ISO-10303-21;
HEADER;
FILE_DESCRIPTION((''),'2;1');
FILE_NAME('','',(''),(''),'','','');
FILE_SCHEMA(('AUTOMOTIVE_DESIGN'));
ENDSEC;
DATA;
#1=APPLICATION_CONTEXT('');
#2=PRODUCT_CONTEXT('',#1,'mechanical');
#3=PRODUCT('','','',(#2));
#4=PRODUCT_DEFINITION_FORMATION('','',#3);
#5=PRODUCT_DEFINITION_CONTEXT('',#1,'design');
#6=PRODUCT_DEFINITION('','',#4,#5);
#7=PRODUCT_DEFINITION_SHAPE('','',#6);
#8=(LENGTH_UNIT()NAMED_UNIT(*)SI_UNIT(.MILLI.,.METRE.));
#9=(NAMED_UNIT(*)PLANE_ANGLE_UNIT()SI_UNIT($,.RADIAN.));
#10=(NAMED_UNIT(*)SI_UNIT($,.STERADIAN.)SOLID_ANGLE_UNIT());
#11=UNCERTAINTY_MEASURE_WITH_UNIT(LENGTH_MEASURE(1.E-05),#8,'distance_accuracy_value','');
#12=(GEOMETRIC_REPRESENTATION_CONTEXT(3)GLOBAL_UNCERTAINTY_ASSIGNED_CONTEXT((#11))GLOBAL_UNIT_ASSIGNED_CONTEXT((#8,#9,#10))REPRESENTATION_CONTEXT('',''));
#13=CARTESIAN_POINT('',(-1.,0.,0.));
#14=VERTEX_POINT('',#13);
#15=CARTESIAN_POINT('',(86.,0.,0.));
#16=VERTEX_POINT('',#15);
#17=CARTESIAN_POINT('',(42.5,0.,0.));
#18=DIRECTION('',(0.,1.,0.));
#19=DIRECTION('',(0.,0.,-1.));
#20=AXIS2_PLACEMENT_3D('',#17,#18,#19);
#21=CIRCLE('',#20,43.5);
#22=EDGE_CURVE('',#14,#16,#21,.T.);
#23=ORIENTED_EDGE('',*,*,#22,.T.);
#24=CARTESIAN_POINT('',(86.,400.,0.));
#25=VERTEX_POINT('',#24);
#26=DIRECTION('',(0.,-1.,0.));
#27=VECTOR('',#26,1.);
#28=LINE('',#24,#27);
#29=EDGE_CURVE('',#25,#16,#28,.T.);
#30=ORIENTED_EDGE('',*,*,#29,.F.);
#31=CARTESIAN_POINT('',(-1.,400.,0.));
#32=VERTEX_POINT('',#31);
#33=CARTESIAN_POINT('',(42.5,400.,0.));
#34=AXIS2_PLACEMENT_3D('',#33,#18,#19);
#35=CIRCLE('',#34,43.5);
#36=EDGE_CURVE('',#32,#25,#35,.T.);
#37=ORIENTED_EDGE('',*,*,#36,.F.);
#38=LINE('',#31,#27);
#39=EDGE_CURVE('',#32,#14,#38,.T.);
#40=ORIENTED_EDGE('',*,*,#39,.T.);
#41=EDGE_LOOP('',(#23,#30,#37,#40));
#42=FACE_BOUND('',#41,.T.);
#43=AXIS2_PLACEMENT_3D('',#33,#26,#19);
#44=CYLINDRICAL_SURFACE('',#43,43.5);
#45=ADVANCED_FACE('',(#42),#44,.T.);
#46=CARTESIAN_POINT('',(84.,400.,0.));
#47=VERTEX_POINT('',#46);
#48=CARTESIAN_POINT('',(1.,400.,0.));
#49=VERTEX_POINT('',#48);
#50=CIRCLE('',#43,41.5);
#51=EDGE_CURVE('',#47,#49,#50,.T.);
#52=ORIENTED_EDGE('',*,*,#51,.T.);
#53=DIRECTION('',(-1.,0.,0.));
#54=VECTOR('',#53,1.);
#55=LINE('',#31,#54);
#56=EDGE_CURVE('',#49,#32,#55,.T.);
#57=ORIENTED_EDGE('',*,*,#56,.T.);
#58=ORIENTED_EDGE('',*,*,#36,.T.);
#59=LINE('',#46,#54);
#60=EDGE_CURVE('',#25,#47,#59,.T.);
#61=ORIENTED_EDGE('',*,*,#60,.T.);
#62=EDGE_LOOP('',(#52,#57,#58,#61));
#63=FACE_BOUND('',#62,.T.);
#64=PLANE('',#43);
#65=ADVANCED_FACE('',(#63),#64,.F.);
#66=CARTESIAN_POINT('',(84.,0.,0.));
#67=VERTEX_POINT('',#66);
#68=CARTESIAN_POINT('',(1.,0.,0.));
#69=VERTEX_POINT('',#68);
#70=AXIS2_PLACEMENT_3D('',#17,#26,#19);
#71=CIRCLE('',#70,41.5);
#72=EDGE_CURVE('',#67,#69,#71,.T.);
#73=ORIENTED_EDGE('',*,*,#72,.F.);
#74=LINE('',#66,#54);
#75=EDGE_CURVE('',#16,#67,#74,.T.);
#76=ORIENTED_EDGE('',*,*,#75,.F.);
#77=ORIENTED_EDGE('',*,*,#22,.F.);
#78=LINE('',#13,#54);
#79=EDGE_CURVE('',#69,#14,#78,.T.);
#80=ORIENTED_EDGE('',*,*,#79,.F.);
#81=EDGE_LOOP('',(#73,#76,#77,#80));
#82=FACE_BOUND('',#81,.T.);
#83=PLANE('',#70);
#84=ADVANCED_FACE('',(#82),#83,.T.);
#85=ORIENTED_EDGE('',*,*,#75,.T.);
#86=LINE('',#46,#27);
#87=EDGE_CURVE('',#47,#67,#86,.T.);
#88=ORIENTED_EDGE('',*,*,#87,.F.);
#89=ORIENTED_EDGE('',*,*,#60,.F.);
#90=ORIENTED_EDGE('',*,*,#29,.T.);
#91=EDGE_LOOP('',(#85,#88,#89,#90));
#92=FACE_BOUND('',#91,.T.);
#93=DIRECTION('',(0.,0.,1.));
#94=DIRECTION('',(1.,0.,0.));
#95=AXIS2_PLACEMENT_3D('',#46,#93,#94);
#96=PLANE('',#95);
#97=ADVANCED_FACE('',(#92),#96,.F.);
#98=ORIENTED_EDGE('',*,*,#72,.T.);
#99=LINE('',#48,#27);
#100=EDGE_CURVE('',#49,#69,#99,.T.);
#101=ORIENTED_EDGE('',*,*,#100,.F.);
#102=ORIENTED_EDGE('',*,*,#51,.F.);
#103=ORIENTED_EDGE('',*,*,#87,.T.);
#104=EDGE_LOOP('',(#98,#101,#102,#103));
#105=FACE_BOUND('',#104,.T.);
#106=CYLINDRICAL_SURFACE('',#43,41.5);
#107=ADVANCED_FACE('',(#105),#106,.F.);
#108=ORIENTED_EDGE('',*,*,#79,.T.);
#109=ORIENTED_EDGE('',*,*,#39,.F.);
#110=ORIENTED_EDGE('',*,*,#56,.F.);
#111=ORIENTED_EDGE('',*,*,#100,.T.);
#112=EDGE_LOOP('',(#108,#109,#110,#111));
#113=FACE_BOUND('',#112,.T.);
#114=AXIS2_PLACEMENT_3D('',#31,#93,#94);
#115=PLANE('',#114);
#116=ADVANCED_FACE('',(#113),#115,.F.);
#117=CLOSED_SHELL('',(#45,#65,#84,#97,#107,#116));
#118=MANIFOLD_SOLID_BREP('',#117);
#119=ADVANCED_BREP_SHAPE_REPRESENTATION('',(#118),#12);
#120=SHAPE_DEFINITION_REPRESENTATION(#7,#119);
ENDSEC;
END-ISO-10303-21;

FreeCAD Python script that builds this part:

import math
import FreeCAD as App
import Part
import Sketcher

V = App.Vector

doc = App.newDocument("Part")
body = doc.addObject("PartDesign::Body", "Body")

# Sketch on XZ plane
sketch1 = doc.addObject("Sketcher::SketchObject", "Sketch")
body.addObject(sketch1)
sketch1.AttachmentSupport = (doc.XZ_Plane, [""])
sketch1.MapMode = "FlatFace"
sketch1.addGeometry([
    Part.LineSegment(V(86, 0, 0), V(84, 0, 0)),
    Part.ArcOfCircle(Part.Circle(V(42.5, 0, 0), V(0, 0, 1), 41.5), math.radians(0), math.radians(180)),
    Part.LineSegment(V(1, 0, 0), V(-1, 0, 0)),
    Part.ArcOfCircle(Part.Circle(V(42.5, 0, 0), V(0, 0, 1), 43.5), math.radians(0), math.radians(180)),
], False)
sketch1.addConstraint([
    Sketcher.Constraint("Coincident", 0, 2, 1, 1),
    Sketcher.Constraint("Coincident", 1, 2, 2, 1),
    Sketcher.Constraint("Coincident", 2, 2, 3, 2),
    Sketcher.Constraint("Coincident", 3, 1, 0, 1),
    Sketcher.Constraint("Horizontal", 0),
    Sketcher.Constraint("Horizontal", 2),
    Sketcher.Constraint("Coincident", 3, 3, 1, 3),
    Sketcher.Constraint("Symmetric", 1, 2, 2, 2, -1, 1),
    Sketcher.Constraint("PointOnObject", 1, 3, -1),
    Sketcher.Constraint("PointOnObject", 0, 2, -1),
    Sketcher.Constraint("Radius", 1, 41.5),
    Sketcher.Constraint("Radius", 3, 43.5),
])
pad1 = doc.addObject("PartDesign::Pad", "Pad")
body.addObject(pad1)
pad1.Profile = sketch1
pad1.Length = 400
pad1.Reversed = True

doc.recompute()
